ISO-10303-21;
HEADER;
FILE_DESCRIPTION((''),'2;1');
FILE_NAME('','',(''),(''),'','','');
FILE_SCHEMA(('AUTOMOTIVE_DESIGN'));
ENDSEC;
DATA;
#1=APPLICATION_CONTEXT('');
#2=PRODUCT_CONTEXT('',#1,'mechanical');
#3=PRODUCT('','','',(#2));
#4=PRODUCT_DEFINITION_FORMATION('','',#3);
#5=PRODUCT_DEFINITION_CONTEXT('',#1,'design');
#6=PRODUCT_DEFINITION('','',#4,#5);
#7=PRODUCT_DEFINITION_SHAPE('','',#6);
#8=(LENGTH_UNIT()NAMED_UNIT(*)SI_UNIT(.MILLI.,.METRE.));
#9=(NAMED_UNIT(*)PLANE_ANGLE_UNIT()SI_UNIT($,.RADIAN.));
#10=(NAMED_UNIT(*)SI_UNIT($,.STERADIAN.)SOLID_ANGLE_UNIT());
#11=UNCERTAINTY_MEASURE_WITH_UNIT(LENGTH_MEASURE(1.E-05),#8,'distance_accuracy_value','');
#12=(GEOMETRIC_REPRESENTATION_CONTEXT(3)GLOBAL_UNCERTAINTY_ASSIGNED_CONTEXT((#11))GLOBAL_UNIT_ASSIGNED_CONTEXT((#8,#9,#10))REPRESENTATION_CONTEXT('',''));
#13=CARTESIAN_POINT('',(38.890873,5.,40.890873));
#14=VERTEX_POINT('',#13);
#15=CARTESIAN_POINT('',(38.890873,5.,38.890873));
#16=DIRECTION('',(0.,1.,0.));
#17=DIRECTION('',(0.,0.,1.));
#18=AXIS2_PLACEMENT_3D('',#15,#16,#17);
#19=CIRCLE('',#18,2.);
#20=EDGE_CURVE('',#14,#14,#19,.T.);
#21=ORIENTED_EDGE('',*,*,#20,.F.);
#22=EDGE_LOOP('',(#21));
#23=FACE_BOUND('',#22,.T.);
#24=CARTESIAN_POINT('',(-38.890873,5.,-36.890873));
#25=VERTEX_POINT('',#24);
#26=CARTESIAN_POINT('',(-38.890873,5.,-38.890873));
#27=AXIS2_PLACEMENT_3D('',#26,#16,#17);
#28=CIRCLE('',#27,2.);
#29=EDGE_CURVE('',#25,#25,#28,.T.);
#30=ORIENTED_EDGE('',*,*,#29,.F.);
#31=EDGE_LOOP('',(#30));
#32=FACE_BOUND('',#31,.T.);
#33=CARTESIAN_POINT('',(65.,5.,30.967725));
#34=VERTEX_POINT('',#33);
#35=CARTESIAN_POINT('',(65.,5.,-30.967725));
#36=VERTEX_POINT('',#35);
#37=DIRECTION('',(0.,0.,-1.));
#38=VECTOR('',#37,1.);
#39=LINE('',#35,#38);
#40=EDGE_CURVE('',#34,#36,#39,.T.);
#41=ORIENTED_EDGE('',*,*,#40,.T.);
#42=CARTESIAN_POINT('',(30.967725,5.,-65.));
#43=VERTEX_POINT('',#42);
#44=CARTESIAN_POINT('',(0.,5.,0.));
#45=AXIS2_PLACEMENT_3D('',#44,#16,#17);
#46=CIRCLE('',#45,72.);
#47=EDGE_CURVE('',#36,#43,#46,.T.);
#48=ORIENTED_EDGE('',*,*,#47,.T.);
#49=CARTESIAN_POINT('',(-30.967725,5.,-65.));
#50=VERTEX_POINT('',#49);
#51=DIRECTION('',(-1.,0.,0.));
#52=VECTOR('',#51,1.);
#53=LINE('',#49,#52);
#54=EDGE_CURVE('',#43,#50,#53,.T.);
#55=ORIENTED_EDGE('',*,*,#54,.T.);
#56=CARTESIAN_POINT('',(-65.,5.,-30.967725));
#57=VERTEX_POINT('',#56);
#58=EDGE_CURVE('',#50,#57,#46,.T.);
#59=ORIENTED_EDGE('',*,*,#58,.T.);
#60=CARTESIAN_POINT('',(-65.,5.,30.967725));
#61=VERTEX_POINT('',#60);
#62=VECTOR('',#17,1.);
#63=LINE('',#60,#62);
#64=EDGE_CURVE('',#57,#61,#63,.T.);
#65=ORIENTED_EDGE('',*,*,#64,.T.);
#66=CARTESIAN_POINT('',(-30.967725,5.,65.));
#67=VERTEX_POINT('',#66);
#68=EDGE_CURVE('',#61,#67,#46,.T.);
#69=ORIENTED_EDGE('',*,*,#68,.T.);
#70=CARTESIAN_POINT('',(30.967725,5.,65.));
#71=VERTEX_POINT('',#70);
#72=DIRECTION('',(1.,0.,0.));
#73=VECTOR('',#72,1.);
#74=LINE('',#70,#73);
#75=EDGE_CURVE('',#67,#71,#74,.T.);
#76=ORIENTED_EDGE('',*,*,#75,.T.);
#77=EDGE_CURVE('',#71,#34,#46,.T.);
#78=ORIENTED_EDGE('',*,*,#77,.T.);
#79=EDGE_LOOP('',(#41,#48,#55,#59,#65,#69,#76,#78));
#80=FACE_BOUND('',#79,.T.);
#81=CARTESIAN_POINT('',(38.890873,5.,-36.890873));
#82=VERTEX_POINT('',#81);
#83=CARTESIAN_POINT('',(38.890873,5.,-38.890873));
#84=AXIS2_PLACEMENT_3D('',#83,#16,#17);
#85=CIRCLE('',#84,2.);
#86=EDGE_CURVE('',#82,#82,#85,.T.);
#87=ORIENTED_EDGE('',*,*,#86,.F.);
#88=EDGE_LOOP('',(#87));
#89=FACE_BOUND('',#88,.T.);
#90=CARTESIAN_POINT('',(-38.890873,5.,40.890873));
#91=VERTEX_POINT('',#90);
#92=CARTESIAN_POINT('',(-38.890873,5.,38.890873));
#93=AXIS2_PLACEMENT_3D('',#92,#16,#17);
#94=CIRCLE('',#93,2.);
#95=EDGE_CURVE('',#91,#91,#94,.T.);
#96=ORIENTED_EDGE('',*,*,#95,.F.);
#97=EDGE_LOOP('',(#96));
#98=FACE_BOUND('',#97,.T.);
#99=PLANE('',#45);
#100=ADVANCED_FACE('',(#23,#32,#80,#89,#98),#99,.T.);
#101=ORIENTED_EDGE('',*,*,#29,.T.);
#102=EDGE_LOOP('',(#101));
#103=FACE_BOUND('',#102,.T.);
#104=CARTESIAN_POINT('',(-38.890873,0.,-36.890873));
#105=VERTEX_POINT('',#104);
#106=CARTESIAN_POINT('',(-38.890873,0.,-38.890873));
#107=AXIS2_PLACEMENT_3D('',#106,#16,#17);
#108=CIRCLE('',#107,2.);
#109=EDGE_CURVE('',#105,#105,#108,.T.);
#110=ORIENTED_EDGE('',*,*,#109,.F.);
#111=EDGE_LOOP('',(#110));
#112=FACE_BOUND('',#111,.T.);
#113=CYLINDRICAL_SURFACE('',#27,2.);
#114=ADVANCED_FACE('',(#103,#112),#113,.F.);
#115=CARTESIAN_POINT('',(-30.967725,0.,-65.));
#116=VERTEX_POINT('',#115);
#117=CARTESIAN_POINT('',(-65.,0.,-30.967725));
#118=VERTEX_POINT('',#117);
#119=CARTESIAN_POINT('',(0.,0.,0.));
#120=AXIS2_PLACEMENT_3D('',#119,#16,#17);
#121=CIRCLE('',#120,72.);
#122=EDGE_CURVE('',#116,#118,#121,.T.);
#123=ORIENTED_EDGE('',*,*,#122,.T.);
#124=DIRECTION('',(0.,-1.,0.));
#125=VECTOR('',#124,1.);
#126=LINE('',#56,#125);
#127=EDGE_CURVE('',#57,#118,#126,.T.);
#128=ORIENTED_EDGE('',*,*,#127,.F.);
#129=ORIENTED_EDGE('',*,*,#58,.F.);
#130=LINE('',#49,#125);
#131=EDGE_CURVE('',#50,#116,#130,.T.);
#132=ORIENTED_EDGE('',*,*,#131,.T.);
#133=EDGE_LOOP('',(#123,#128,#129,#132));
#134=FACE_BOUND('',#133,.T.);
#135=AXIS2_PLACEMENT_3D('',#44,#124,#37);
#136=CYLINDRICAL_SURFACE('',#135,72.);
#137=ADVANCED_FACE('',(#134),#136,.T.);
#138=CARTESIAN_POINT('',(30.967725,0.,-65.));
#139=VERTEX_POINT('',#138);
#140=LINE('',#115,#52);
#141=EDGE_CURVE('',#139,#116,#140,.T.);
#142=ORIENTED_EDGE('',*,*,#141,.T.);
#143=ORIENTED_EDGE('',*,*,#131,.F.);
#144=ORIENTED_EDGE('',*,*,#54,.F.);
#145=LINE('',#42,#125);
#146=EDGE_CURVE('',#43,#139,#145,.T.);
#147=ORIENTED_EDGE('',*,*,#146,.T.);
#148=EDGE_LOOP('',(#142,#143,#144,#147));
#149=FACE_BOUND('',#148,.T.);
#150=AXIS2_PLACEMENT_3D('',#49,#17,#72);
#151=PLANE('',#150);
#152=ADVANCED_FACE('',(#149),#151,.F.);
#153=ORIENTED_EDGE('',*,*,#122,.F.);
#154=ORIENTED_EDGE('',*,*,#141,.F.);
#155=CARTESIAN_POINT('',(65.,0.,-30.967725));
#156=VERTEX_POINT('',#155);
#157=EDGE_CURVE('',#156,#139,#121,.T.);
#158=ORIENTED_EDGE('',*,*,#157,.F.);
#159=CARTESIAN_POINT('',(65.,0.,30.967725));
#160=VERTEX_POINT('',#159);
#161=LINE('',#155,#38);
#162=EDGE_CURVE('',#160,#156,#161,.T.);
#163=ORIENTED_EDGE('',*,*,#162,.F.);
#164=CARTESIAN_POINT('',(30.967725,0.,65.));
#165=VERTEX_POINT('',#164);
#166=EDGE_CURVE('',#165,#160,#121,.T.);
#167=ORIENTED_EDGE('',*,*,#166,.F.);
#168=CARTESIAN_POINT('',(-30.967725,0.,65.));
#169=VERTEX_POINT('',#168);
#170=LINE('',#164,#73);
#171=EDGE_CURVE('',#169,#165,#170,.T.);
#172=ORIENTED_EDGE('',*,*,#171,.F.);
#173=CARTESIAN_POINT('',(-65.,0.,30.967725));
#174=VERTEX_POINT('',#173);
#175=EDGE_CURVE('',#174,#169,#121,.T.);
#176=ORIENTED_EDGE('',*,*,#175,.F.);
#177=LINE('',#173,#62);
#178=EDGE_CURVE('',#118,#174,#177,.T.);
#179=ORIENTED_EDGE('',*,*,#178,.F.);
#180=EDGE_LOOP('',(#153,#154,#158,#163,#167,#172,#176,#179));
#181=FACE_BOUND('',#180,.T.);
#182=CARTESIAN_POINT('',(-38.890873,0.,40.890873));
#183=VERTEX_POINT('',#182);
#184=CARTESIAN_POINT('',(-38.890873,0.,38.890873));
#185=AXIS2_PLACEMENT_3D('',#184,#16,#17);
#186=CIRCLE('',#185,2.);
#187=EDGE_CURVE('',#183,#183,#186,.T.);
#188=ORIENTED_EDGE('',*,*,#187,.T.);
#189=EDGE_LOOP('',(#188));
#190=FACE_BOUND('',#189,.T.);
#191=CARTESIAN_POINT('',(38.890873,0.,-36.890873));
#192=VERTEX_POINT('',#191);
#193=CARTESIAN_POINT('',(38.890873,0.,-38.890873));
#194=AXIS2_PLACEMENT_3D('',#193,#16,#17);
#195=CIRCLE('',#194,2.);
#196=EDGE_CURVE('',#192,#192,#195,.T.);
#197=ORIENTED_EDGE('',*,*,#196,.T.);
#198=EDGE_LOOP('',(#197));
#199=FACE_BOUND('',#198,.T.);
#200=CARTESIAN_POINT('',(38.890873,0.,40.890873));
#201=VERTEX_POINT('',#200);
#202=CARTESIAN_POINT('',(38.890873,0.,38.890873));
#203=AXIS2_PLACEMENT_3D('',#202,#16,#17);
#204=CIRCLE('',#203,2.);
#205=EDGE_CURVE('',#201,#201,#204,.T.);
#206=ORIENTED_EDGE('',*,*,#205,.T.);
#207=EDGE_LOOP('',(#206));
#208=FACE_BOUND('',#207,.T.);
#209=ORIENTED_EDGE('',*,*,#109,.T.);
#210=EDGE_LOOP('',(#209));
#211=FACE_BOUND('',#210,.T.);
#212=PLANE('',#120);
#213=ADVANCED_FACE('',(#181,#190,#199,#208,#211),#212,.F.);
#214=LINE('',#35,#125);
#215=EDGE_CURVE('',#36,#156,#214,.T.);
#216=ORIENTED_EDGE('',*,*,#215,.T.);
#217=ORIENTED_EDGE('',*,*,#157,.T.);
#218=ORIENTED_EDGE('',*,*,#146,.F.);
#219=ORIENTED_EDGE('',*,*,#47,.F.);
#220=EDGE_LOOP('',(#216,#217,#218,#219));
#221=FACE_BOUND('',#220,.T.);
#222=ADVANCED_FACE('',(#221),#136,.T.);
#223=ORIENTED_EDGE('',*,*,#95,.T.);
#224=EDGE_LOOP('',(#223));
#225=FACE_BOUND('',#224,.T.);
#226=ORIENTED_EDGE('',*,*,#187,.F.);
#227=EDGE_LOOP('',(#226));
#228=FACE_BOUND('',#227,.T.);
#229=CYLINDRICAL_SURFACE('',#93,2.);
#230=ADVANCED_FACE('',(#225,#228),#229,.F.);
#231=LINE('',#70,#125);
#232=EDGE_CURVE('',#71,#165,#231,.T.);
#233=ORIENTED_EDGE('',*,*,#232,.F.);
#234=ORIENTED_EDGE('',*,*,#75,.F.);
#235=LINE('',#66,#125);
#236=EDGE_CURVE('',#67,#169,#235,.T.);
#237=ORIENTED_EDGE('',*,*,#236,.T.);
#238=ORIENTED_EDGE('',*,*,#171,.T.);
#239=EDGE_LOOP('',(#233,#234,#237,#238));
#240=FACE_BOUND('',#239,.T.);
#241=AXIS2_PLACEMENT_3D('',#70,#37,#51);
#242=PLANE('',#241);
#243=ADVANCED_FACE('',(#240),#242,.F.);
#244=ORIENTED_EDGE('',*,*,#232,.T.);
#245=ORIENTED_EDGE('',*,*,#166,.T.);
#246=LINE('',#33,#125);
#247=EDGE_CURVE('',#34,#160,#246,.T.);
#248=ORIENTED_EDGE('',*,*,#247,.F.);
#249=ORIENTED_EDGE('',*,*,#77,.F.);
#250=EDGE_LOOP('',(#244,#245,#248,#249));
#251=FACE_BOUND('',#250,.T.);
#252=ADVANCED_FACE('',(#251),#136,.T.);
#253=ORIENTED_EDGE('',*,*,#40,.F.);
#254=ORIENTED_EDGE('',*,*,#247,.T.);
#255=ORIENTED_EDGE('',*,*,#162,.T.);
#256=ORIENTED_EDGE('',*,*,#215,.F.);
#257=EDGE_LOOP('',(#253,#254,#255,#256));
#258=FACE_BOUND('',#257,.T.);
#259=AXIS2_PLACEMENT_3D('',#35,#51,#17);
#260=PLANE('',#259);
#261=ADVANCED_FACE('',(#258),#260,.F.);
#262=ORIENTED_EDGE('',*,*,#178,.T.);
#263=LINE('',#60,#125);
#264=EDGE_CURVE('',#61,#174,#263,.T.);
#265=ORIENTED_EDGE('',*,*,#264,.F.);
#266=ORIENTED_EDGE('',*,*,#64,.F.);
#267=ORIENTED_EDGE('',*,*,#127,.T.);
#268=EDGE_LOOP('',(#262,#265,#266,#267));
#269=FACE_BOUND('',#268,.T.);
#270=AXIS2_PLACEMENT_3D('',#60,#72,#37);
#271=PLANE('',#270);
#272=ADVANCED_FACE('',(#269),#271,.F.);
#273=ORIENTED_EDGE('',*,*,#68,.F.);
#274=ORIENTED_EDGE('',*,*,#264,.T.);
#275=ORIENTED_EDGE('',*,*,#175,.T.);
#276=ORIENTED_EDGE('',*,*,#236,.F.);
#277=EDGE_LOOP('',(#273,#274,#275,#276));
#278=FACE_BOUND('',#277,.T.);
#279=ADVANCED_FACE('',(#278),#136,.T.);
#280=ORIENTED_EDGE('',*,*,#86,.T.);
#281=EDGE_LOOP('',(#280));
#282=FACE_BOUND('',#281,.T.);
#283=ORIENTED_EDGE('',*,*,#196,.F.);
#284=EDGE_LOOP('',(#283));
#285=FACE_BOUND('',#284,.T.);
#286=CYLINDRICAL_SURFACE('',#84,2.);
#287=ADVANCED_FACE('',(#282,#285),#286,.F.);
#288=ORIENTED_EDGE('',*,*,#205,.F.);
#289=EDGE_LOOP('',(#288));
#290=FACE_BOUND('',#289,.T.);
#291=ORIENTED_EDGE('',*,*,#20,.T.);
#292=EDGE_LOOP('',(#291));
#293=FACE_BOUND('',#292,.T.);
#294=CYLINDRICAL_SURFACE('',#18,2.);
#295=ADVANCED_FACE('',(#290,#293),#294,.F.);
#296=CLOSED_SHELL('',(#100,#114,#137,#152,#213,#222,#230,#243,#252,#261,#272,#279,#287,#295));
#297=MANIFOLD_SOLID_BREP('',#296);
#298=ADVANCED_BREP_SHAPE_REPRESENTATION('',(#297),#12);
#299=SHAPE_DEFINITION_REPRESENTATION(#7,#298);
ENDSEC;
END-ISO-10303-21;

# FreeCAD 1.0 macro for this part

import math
import FreeCAD as App
import Part
import Sketcher

V = App.Vector
Q = App.Units.Quantity

doc = App.newDocument("Part")
body = doc.addObject("PartDesign::Body", "Body")

# Sketch on XZ plane
sketch1 = doc.addObject("Sketcher::SketchObject", "Sketch")
body.addObject(sketch1)
sketch1.AttachmentSupport = (doc.XZ_Plane, [""])
sketch1.MapMode = "FlatFace"
sketch1.addGeometry([
    Part.LineSegment(V(65, 30.967725, 0), V(65, -30.967725, 0)),  # 0
    Part.ArcOfCircle(Part.Circle(V(0, 0, 0), V(0, 0, 1), 72), math.radians(-64.525631), math.radians(-25.474369)),  # 1
    Part.LineSegment(V(30.967725, -65, 0), V(-30.967725, -65, 0)),  # 2
    Part.ArcOfCircle(Part.Circle(V(0, 0, 0), V(0, 0, 1), 72), math.radians(-154.525631), math.radians(-115.474369)),  # 3
    Part.LineSegment(V(-65, -30.967725, 0), V(-65, 30.967725, 0)),  # 4
    Part.ArcOfCircle(Part.Circle(V(0, 0, 0), V(0, 0, 1), 72), math.radians(115.474369), math.radians(154.525631)),  # 5
    Part.LineSegment(V(-30.967725, 65, 0), V(30.967725, 65, 0)),  # 6
    Part.ArcOfCircle(Part.Circle(V(0, 0, 0), V(0, 0, 1), 72), math.radians(25.474369), math.radians(64.525631)),  # 7
], False)
sketch1.addConstraint([
    Sketcher.Constraint("Coincident", 0, 2, 1, 2),
    Sketcher.Constraint("Coincident", 1, 1, 2, 1),
    Sketcher.Constraint("Coincident", 2, 2, 3, 2),
    Sketcher.Constraint("Coincident", 3, 1, 4, 1),
    Sketcher.Constraint("Coincident", 4, 2, 5, 2),
    Sketcher.Constraint("Coincident", 5, 1, 6, 1),
    Sketcher.Constraint("Coincident", 6, 2, 7, 2),
    Sketcher.Constraint("Coincident", 7, 1, 0, 1),
    Sketcher.Constraint("Vertical", 0),
    Sketcher.Constraint("Horizontal", 2),
    Sketcher.Constraint("Vertical", 4),
    Sketcher.Constraint("Horizontal", 6),
    Sketcher.Constraint("Coincident", 1, 3, -1, 1),
    Sketcher.Constraint("Coincident", 3, 3, -1, 1),
    Sketcher.Constraint("Coincident", 5, 3, -1, 1),
    Sketcher.Constraint("Coincident", 7, 3, -1, 1),
    Sketcher.Constraint("Equal", 1, 3),
    Sketcher.Constraint("Equal", 3, 5),
    Sketcher.Constraint("Equal", 5, 7),
    Sketcher.Constraint("Horizontal", 0, 2, 3, 1),
    Sketcher.Constraint("Vertical", 2, 2, 5, 1),
    Sketcher.Constraint("Equal", 6, 0),
    Sketcher.Constraint("Radius", 1, Q("72 mm")),
    Sketcher.Constraint("DistanceX", -1, 1, 0, 2, Q("65 mm")),
])
pad1 = doc.addObject("PartDesign::Pad", "Pad")
body.addObject(pad1)
pad1.Profile = sketch1
pad1.Length = 5
pad1.Reversed = True

# Sketch on XZ plane
sketch2 = doc.addObject("Sketcher::SketchObject", "Sketch001")
body.addObject(sketch2)
sketch2.AttachmentSupport = (doc.XZ_Plane, [""])
sketch2.MapMode = "FlatFace"
sketch2.AttachmentOffset = App.Placement(V(0, 0, -5), App.Rotation())
sketch2.addGeometry([
    Part.Circle(V(38.890873, -38.890873, 0), V(0, 0, 1), 2),
    Part.Circle(V(38.890873, 38.890873, 0), V(0, 0, 1), 2),
    Part.Circle(V(-38.890873, 38.890873, 0), V(0, 0, 1), 2),
    Part.Circle(V(-38.890873, -38.890873, 0), V(0, 0, 1), 2),
], False)
sketch2.addConstraint([
    Sketcher.Constraint("Equal", 0, 1),
    Sketcher.Constraint("Equal", 1, 2),
    Sketcher.Constraint("Equal", 2, 3),
    Sketcher.Constraint("Symmetric", 0, 3, 2, 3, -1, 1),
    Sketcher.Constraint("Symmetric", 1, 3, 3, 3, -1, 1),
    Sketcher.Constraint("Symmetric", 1, 3, 2, 3, -2),
    Sketcher.Constraint("Diameter", 0, Q("4 mm")),
    Sketcher.Constraint("DistanceX", -1, 1, 0, 3, Q("38.890873 mm")),
    Sketcher.Constraint("DistanceY", 0, 3, -1, 1, Q("38.890873 mm")),
])
doc.recompute()
hole = doc.addObject("PartDesign::Hole", "Hole")
body.addObject(hole)
hole.Profile = sketch2
hole.ThreadType = "None"
hole.Diameter = 4
hole.DepthType = "ThroughAll"
hole.Reversed = True

doc.recompute()
